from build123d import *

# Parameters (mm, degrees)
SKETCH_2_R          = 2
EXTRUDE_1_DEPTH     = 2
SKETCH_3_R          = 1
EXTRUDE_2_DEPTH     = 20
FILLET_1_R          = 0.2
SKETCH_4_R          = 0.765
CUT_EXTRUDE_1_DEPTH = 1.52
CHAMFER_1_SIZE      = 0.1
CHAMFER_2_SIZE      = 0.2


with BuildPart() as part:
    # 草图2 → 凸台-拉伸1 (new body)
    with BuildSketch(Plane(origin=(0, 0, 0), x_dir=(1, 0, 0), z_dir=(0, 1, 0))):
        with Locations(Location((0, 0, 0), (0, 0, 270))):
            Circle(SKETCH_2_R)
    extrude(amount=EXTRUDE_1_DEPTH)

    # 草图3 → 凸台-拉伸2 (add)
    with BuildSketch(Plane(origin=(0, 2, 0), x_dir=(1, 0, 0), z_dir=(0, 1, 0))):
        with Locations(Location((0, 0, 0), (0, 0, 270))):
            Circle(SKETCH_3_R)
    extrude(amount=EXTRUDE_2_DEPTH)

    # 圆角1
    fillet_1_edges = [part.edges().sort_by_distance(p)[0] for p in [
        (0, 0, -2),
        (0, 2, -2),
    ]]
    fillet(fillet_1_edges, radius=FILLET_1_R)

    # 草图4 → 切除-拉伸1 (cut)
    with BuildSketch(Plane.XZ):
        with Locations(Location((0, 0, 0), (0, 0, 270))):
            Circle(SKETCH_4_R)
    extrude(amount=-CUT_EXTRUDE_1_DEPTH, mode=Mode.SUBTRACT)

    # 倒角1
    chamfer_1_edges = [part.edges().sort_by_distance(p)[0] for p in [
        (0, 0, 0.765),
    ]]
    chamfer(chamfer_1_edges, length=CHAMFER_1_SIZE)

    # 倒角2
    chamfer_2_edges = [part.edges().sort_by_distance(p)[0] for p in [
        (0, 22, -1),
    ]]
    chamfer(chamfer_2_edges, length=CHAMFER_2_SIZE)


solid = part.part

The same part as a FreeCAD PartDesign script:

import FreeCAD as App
import Part
import Sketcher
from FreeCAD import Vector
Q = App.Units.Quantity


def edges_at(feature, points):
    """Names of the edges that pass closest to the given points."""
    edges = feature.Shape.Edges
    near = lambda p: min(range(len(edges)), key=lambda i: edges[i].distToShape(Part.Vertex(*p))[0])
    return sorted({f"Edge{near(p) + 1}" for p in points})

doc = App.newDocument("Part")
params = doc.addObject("Spreadsheet::Sheet", "Params")
for row, (alias, value) in enumerate([
    ("sketch1_diameter", "4 mm"),
    ("pad1_length", "2 mm"),
    ("sketch2_diameter", "2 mm"),
    ("pad2_length", "20 mm"),
    ("fillet_radius", "0.2 mm"),
    ("sketch3_diameter", "1.53 mm"),
    ("pocket1_length", "1.52 mm"),
    ("chamfer_size", "0.1 mm"),
    ("chamfer2_size", "0.2 mm"),
], start=1):
    params.set(f"A{row}", alias)
    params.set(f"B{row}", "=" + value)
    params.setAlias(f"B{row}", alias)

body = doc.addObject("PartDesign::Body", "Body")

# Sketch on XZ plane
sketch1 = body.newObject("Sketcher::SketchObject", "Sketch")
sketch1.AttachmentSupport = (doc.getObject("XZ_Plane"), [""])
sketch1.MapMode = "FlatFace"
sketch1.addGeometry(Part.Circle(Vector(0, 0, 0), Vector(0, 0, 1), 2), False)
sketch1.addConstraint([
    Sketcher.Constraint("Coincident", 0, 3, -1, 1),
    Sketcher.Constraint("Diameter", 0, Q("4 mm")),
])
sketch1.setExpression("Constraints[1]", "Params.sketch1_diameter")
pad1 = body.newObject("PartDesign::Pad", "Pad")
pad1.Profile = sketch1
pad1.setExpression("Length", "Params.pad1_length")
pad1.Reversed = True

# Sketch on XZ plane
sketch2 = body.newObject("Sketcher::SketchObject", "Sketch001")
sketch2.AttachmentSupport = (doc.getObject("XZ_Plane"), [""])
sketch2.MapMode = "FlatFace"
sketch2.AttachmentOffset = App.Placement(Vector(0, 0, -2), App.Rotation())
sketch2.addGeometry(Part.Circle(Vector(0, 0, 0), Vector(0, 0, 1), 1), False)
sketch2.addConstraint([
    Sketcher.Constraint("Coincident", 0, 3, -1, 1),
    Sketcher.Constraint("Diameter", 0, Q("2 mm")),
])
sketch2.setExpression("Constraints[1]", "Params.sketch2_diameter")
pad2 = body.newObject("PartDesign::Pad", "Pad001")
pad2.Profile = sketch2
pad2.setExpression("Length", "Params.pad2_length")
pad2.Reversed = True
doc.recompute()

fillet = body.newObject("PartDesign::Fillet", "Fillet")
fillet.Base = (pad2, edges_at(pad2, [(0, 0, -2), (0, 2, -2)]))
fillet.setExpression("Radius", "Params.fillet_radius")

# Sketch on XZ plane
sketch3 = body.newObject("Sketcher::SketchObject", "Sketch002")
sketch3.AttachmentSupport = (doc.getObject("XZ_Plane"), [""])
sketch3.MapMode = "FlatFace"
sketch3.addGeometry(Part.Circle(Vector(0, 0, 0), Vector(0, 0, 1), 0.765), False)
sketch3.addConstraint([
    Sketcher.Constraint("Coincident", 0, 3, -1, 1),
    Sketcher.Constraint("Diameter", 0, Q("1.53 mm")),
])
sketch3.setExpression("Constraints[1]", "Params.sketch3_diameter")
pocket1 = body.newObject("PartDesign::Pocket", "Pocket")
pocket1.Profile = sketch3
pocket1.setExpression("Length", "Params.pocket1_length")
doc.recompute()

chamfer = body.newObject("PartDesign::Chamfer", "Chamfer")
chamfer.Base = (pocket1, edges_at(pocket1, [(0, 0, 0.765)]))
chamfer.setExpression("Size", "Params.chamfer_size")
doc.recompute()

chamfer2 = body.newObject("PartDesign::Chamfer", "Chamfer001")
chamfer2.Base = (chamfer, edges_at(chamfer, [(0, 22, -1)]))
chamfer2.setExpression("Size", "Params.chamfer2_size")

doc.recompute()
